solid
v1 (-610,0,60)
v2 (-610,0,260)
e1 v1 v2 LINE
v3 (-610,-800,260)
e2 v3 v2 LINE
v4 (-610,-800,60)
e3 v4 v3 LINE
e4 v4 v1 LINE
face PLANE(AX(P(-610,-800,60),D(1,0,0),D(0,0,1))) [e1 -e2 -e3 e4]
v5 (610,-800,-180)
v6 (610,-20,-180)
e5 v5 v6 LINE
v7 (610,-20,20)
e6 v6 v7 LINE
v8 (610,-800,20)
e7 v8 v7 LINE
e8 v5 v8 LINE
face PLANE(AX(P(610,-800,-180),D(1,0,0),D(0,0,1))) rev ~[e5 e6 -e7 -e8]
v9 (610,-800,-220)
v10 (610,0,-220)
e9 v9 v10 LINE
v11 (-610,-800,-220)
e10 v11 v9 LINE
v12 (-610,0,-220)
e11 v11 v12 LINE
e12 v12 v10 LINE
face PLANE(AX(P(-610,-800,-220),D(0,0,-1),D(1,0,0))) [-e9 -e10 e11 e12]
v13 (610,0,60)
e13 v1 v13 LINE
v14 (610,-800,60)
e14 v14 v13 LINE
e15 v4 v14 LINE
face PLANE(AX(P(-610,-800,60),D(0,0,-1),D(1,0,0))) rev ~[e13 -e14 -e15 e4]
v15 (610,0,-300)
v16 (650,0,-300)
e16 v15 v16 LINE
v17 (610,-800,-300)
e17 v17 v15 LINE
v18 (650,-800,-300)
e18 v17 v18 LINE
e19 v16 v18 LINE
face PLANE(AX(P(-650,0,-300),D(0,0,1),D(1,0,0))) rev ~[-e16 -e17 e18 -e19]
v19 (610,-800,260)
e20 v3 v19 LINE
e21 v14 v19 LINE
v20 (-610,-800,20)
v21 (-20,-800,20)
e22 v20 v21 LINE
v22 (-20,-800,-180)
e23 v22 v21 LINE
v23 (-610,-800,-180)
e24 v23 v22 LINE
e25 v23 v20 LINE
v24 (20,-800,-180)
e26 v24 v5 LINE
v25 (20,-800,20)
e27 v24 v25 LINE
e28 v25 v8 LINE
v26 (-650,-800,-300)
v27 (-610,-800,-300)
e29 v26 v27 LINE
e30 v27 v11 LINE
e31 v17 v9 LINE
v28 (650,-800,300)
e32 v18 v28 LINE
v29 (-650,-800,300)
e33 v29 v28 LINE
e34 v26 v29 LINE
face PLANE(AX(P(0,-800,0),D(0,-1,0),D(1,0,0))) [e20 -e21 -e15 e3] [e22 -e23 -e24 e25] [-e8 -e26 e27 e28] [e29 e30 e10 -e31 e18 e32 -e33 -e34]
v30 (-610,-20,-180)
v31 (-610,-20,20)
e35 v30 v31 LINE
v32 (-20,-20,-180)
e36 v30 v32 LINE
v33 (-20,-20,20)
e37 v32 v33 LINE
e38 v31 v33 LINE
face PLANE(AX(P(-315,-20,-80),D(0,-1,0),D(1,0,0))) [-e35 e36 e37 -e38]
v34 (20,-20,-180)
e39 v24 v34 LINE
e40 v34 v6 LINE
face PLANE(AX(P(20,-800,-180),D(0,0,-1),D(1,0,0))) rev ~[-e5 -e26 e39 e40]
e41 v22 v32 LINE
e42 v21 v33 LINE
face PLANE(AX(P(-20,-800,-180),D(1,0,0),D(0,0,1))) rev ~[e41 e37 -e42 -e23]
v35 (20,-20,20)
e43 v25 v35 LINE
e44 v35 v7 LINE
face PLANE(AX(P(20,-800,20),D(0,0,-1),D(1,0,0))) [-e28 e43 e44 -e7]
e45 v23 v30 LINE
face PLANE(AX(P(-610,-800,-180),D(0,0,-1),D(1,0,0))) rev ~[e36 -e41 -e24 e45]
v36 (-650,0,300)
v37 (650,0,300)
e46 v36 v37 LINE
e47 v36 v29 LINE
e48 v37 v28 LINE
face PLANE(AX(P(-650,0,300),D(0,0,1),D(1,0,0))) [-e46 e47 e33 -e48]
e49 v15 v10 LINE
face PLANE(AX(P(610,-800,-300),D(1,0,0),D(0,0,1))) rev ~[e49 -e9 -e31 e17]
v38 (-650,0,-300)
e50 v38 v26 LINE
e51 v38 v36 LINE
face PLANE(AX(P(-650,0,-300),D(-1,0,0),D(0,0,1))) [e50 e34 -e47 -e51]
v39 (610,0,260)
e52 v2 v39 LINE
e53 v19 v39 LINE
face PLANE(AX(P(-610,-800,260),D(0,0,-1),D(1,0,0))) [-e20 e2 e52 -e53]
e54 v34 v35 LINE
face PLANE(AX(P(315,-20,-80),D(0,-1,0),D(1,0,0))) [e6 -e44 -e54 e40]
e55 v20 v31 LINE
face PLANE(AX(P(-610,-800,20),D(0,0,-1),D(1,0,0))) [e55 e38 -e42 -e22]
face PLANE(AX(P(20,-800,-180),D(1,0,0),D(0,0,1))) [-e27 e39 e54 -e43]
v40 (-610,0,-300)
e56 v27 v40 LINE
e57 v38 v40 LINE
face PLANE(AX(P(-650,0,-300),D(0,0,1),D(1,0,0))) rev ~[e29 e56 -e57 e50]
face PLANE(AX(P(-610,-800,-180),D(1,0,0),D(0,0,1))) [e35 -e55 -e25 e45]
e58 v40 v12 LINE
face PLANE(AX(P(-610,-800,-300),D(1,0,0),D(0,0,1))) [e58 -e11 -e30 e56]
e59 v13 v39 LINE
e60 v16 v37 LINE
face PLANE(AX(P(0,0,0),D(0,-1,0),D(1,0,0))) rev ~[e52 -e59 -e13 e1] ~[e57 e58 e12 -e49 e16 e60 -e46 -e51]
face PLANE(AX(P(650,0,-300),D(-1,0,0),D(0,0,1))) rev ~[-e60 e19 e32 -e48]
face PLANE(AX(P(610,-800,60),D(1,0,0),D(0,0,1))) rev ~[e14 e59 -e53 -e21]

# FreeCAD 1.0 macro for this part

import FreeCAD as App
import Part
import Sketcher
from FreeCAD import Vector


def add_polygon(sketch, points):
    """Adds a closed chain of lines whose ends are joined by coincident constraints."""
    first, n = sketch.GeometryCount, len(points)
    for a, b in zip(points, points[1:] + points[:1]):
        sketch.addGeometry(Part.LineSegment(App.Vector(*a, 0), App.Vector(*b, 0)), False)
    for i in range(n):
        sketch.addConstraint(Sketcher.Constraint("Coincident", first + i, 2, first + (i + 1) % n, 1))

doc = App.newDocument("Part")
body = doc.addObject("PartDesign::Body", "Body")

# Sketch on XZ plane
sketch1 = body.newObject("Sketcher::SketchObject", "Sketch")
sketch1.AttachmentSupport = (doc.getObject("XZ_Plane"), [""])
sketch1.MapMode = "FlatFace"
add_polygon(sketch1, [(-650, 300), (-650, -300), (650, -300), (650, 300)])  # lines 0-3
sketch1.addConstraint([
    Sketcher.Constraint("Vertical", 0),
    Sketcher.Constraint("Horizontal", 1),
    Sketcher.Constraint("Vertical", 2),
    Sketcher.Constraint("Horizontal", 3),
    Sketcher.Constraint("Symmetric", 0, 2, 2, 2, -1, 1),
    Sketcher.Constraint("DistanceX", 1, 1, 1, 2, 1300.0),
    Sketcher.Constraint("DistanceY", 0, 2, 0, 1, 600.0),
])
pad1 = body.newObject("PartDesign::Pad", "Pad")
pad1.Profile = sketch1
pad1.Length = 800

# Sketch on XZ plane
sketch2 = body.newObject("Sketcher::SketchObject", "Sketch001")
sketch2.AttachmentSupport = (doc.getObject("XZ_Plane"), [""])
sketch2.MapMode = "FlatFace"
sketch2.AttachmentOffset = App.Placement(Vector(0, 0, 800), App.Rotation())
add_polygon(sketch2, [(-610, -220), (-610, -300), (610, -300), (610, -220)])  # lines 0-3
sketch2.addConstraint([
    Sketcher.Constraint("Vertical", 0),
    Sketcher.Constraint("Horizontal", 1),
    Sketcher.Constraint("Vertical", 2),
    Sketcher.Constraint("Horizontal", 3),
    Sketcher.Constraint("DistanceX", 1, 1, 1, 2, 1220.0),
    Sketcher.Constraint("DistanceY", 0, 2, 0, 1, 80.0),
    Sketcher.Constraint("DistanceX", 0, 2, -1, 1, 610.0),
    Sketcher.Constraint("DistanceY", 0, 2, -1, 1, 300.0),
])
pocket1 = body.newObject("PartDesign::Pocket", "Pocket")
pocket1.Profile = sketch2
pocket1.Type = "ThroughAll"

# Sketch on XZ plane
sketch3 = body.newObject("Sketcher::SketchObject", "Sketch002")
sketch3.AttachmentSupport = (doc.getObject("XZ_Plane"), [""])
sketch3.MapMode = "FlatFace"
sketch3.AttachmentOffset = App.Placement(Vector(0, 0, 800), App.Rotation())
add_polygon(sketch3, [(-610, 260), (-610, 60), (610, 60), (610, 260)])  # lines 0-3
sketch3.addConstraint([
    Sketcher.Constraint("Vertical", 0),
    Sketcher.Constraint("Horizontal", 1),
    Sketcher.Constraint("Vertical", 2),
    Sketcher.Constraint("Horizontal", 3),
    Sketcher.Constraint("DistanceX", 1, 1, 1, 2, 1220.0),
    Sketcher.Constraint("DistanceY", 0, 2, 0, 1, 200.0),
    Sketcher.Constraint("DistanceX", 0, 2, -1, 1, 610.0),
    Sketcher.Constraint("DistanceY", -1, 1, 0, 2, 60.0),
])
pocket2 = body.newObject("PartDesign::Pocket", "Pocket001")
pocket2.Profile = sketch3
pocket2.Type = "ThroughAll"

# Sketch on XZ plane
sketch4 = body.newObject("Sketcher::SketchObject", "Sketch003")
sketch4.AttachmentSupport = (doc.getObject("XZ_Plane"), [""])
sketch4.MapMode = "FlatFace"
sketch4.AttachmentOffset = App.Placement(Vector(0, 0, 800), App.Rotation())
add_polygon(sketch4, [(-610, 20), (-610, -180), (-20, -180), (-20, 20)])  # lines 0-3
add_polygon(sketch4, [(20, 20), (20, -180), (610, -180), (610, 20)])  # lines 4-7
sketch4.addConstraint([
    Sketcher.Constraint("Vertical", 0),
    Sketcher.Constraint("Horizontal", 1),
    Sketcher.Constraint("Vertical", 2),
    Sketcher.Constraint("Horizontal", 3),
    Sketcher.Constraint("Vertical", 4),
    Sketcher.Constraint("Horizontal", 5),
    Sketcher.Constraint("Vertical", 6),
    Sketcher.Constraint("Horizontal", 7),
    Sketcher.Constraint("Symmetric", 1, 2, 4, 2, -2),
    Sketcher.Constraint("Symmetric", 3, 2, 6, 2, -2),
    Sketcher.Constraint("DistanceX", 1, 1, 1, 2, 590.0),
    Sketcher.Constraint("DistanceY", 0, 2, 0, 1, 200.0),
    Sketcher.Constraint("DistanceX", 0, 2, -1, 1, 610.0),
    Sketcher.Constraint("DistanceY", 0, 2, -1, 1, 180.0),
])
pocket3 = body.newObject("PartDesign::Pocket", "Pocket002")
pocket3.Profile = sketch4
pocket3.Length = 780

doc.recompute()
